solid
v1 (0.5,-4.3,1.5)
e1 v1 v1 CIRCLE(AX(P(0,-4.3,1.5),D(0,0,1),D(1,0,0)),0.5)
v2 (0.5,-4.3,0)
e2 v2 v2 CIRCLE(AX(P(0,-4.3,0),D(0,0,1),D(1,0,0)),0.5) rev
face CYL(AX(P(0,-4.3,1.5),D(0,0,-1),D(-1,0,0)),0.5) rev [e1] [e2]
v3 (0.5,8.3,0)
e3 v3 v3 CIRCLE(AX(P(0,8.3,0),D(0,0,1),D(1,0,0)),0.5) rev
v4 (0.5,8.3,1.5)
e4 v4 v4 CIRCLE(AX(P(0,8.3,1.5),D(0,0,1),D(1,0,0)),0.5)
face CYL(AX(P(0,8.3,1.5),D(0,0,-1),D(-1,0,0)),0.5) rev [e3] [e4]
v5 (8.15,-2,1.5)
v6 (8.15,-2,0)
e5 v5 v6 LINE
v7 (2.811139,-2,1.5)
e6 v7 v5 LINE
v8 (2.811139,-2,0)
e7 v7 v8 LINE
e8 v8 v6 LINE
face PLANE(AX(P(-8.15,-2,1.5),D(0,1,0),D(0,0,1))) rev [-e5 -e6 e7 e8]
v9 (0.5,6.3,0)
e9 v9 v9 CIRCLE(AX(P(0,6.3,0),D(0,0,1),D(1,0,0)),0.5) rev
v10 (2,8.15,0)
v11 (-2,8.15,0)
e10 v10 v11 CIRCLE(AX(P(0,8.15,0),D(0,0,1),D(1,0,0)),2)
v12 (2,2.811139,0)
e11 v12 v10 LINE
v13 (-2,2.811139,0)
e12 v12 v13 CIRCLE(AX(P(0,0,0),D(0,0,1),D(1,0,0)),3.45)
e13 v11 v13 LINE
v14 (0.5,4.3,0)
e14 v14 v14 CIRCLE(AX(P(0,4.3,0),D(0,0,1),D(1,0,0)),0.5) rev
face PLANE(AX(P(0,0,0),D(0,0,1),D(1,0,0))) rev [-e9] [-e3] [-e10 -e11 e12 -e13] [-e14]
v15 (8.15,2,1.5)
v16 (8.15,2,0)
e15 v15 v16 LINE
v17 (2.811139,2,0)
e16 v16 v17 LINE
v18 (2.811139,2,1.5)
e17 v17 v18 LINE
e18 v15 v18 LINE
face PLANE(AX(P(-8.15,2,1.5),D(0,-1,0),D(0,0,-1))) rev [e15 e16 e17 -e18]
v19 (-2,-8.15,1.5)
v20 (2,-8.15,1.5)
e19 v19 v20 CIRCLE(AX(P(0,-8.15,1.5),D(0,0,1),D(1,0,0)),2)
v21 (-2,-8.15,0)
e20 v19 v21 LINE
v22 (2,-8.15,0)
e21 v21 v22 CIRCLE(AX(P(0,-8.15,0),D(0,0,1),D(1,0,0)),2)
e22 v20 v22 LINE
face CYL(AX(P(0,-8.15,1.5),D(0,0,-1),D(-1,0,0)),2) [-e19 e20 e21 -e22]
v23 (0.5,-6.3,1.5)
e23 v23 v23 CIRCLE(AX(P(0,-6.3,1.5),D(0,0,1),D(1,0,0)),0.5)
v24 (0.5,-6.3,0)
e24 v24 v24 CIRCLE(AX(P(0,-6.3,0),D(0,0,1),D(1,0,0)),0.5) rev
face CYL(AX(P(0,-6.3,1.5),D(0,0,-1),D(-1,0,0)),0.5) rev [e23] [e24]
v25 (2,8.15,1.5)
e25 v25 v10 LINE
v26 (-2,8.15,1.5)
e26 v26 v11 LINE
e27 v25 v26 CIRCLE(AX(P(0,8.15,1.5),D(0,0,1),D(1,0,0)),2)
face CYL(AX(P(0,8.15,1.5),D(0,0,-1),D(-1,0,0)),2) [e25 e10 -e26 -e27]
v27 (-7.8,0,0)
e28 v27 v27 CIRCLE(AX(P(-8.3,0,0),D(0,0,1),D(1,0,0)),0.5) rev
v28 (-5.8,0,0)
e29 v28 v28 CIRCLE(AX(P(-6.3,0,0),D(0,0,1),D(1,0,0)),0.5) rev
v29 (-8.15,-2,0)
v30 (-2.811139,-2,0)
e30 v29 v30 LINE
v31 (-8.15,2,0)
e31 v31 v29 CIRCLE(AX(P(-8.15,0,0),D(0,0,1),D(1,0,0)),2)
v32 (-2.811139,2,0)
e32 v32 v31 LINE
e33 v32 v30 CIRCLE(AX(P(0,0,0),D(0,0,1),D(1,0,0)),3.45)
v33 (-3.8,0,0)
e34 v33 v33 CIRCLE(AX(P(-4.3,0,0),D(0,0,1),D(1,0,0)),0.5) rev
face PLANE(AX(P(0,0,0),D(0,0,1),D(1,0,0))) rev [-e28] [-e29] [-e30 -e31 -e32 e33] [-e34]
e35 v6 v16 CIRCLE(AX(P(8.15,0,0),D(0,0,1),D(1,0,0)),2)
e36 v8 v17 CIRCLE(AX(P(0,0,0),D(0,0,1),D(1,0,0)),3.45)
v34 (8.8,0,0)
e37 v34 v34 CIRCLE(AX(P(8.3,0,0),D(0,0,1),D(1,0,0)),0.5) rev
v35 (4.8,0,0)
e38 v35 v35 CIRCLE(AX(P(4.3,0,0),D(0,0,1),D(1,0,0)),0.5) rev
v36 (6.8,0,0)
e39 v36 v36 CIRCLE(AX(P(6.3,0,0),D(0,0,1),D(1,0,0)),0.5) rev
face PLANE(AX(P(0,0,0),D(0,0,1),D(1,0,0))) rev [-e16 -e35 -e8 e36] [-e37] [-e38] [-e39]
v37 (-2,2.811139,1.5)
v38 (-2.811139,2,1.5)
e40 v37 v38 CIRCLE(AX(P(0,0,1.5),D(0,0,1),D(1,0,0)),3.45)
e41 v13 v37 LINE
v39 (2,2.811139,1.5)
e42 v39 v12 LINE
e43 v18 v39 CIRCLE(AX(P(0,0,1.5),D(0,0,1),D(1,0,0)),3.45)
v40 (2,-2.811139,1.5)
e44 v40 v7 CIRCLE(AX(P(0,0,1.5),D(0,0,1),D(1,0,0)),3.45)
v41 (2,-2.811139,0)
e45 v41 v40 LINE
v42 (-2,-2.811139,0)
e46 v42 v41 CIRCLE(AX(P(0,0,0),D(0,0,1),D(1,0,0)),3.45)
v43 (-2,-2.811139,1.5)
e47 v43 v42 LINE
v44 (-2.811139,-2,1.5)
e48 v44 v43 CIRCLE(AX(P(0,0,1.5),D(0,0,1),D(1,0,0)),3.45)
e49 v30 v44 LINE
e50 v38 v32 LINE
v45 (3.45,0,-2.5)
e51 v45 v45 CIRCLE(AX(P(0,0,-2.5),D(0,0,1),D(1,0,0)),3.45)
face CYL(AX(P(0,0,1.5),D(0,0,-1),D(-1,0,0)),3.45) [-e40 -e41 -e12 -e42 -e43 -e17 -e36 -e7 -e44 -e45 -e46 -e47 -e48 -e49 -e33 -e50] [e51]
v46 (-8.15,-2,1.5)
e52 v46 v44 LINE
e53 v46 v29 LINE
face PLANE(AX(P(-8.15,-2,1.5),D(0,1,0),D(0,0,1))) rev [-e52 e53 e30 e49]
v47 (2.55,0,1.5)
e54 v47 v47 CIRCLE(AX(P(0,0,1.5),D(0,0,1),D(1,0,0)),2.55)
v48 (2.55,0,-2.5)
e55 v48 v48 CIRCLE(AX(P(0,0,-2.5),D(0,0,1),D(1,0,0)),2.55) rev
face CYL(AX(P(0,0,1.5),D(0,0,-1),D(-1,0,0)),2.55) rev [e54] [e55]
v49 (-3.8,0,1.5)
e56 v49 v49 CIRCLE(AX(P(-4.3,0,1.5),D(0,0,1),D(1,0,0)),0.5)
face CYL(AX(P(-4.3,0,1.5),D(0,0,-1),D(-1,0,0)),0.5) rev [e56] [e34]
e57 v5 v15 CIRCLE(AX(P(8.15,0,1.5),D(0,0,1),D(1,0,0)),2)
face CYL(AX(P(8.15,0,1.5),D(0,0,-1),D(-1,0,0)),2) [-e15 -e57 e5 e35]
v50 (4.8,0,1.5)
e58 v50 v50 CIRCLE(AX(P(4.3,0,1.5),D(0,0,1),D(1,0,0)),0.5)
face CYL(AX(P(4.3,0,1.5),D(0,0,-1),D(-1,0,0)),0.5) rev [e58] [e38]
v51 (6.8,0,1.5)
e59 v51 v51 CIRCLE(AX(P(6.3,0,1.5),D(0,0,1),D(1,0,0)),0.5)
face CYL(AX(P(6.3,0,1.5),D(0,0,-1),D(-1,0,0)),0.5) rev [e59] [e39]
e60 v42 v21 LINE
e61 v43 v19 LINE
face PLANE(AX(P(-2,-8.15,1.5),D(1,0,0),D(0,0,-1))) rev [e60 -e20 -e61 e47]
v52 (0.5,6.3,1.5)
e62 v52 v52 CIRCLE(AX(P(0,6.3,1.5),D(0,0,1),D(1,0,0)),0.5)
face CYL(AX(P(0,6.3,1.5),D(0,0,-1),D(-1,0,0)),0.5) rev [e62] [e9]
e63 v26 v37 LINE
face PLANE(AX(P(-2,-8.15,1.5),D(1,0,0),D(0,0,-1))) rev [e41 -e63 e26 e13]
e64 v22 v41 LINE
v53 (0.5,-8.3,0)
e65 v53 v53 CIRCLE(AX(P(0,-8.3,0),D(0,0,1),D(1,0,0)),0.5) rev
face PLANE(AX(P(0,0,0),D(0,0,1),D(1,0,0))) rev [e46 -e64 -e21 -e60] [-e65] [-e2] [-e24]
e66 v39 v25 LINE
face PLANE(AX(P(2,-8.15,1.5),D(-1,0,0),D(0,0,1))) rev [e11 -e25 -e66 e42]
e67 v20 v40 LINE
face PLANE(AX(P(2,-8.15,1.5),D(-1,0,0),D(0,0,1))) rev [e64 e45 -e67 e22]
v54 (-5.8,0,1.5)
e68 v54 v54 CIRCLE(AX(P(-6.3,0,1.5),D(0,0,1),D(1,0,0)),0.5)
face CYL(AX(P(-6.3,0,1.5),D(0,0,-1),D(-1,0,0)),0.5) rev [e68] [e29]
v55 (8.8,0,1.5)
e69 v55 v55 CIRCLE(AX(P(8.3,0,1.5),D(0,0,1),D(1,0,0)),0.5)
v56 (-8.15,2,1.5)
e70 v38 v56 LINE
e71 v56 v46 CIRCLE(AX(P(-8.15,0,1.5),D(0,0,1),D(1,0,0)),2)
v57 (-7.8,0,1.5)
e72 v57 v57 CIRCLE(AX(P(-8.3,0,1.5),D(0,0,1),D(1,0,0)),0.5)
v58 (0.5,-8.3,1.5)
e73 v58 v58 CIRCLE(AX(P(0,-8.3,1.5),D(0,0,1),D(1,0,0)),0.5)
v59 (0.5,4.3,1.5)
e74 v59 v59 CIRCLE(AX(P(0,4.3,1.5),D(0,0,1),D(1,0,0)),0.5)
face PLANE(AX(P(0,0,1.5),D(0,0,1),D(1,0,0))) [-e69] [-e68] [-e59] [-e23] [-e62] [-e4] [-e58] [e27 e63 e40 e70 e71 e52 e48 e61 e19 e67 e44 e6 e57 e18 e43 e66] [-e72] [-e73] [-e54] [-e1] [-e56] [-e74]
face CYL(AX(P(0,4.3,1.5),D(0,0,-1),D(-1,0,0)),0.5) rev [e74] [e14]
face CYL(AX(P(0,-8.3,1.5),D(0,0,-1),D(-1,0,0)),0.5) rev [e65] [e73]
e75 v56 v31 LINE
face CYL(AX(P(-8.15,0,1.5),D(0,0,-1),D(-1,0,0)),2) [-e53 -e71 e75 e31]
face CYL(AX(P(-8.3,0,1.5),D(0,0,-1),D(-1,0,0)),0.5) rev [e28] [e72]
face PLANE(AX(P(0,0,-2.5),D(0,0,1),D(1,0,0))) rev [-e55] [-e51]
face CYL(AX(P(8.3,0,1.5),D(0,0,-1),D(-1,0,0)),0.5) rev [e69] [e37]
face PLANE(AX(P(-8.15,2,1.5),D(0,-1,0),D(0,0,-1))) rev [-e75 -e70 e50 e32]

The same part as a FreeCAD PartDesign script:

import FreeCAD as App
import Part
import Sketcher

V = App.Vector
Q = App.Units.Quantity


def add_polygon(sketch, points):
    """Adds a closed chain of lines whose ends are joined by coincident constraints."""
    first, n = sketch.GeometryCount, len(points)
    for a, b in zip(points, points[1:] + points[:1]):
        sketch.addGeometry(Part.LineSegment(App.Vector(*a, 0), App.Vector(*b, 0)), False)
    for i in range(n):
        sketch.addConstraint(Sketcher.Constraint("Coincident", first + i, 2, first + (i + 1) % n, 1))

doc = App.newDocument("Part")
body = doc.addObject("PartDesign::Body", "Body")

# Sketch on XY plane
sketch1 = body.newObject("Sketcher::SketchObject", "Sketch")
sketch1.AttachmentSupport = (doc.getObject("XY_Plane"), [""])
sketch1.MapMode = "FlatFace"
sketch1.addGeometry(Part.Circle(V(0, 0, 0), V(0, 0, 1), 3.5), False)
sketch1.addConstraint([
    Sketcher.Constraint("Coincident", 0, 3, -1, 1),
    Sketcher.Constraint("Diameter", 0, Q("6.9 mm")),
])
pad1 = body.newObject("PartDesign::Pad", "Pad")
pad1.Profile = sketch1
pad1.Length = 1.5

# Sketch on XY plane
sketch2 = body.newObject("Sketcher::SketchObject", "Sketch001")
sketch2.AttachmentSupport = (doc.getObject("XY_Plane"), [""])
sketch2.MapMode = "FlatFace"
add_polygon(sketch2, [(-8.2, 2), (-8.2, -2), (8.2, -2), (8.2, 2)])  # lines 0-3
sketch2.addConstraint([
    Sketcher.Constraint("Vertical", 0),
    Sketcher.Constraint("Horizontal", 1),
    Sketcher.Constraint("Vertical", 2),
    Sketcher.Constraint("Horizontal", 3),
    Sketcher.Constraint("Symmetric", 0, 2, 2, 2, -1, 1),
    Sketcher.Constraint("DistanceY", 0, 2, 0, 1, Q("4 mm")),
    Sketcher.Constraint("DistanceX", 1, 1, 1, 2, Q("16.3 mm")),
])
pad2 = body.newObject("PartDesign::Pad", "Pad001")
pad2.Profile = sketch2
pad2.Length = 1.5

# Sketch on XY plane
sketch3 = body.newObject("Sketcher::SketchObject", "Sketch002")
sketch3.AttachmentSupport = (doc.getObject("XY_Plane"), [""])
sketch3.MapMode = "FlatFace"
add_polygon(sketch3, [(-2, 8.2), (-2, -8.2), (2, -8.2), (2, 8.2)])  # lines 0-3
sketch3.addConstraint([
    Sketcher.Constraint("Vertical", 0),
    Sketcher.Constraint("Horizontal", 1),
    Sketcher.Constraint("Vertical", 2),
    Sketcher.Constraint("Horizontal", 3),
    Sketcher.Constraint("Symmetric", 0, 2, 2, 2, -1, 1),
    Sketcher.Constraint("DistanceX", 1, 1, 1, 2, Q("4 mm")),
    Sketcher.Constraint("DistanceY", 0, 2, 0, 1, Q("16.3 mm")),
])
pad3 = body.newObject("PartDesign::Pad", "Pad002")
pad3.Profile = sketch3
pad3.Length = 1.5

# Sketch on XY plane
sketch4 = body.newObject("Sketcher::SketchObject", "Sketch003")
sketch4.AttachmentSupport = (doc.getObject("XY_Plane"), [""])
sketch4.MapMode = "FlatFace"
sketch4.addGeometry([
    Part.Circle(V(8.2, 0, 0), V(0, 0, 1), 2),
    Part.Circle(V(-8.2, 0, 0), V(0, 0, 1), 2),
    Part.Circle(V(0, 8.2, 0), V(0, 0, 1), 2),
    Part.Circle(V(0, -8.2, 0), V(0, 0, 1), 2),
], False)
sketch4.addConstraint([
    Sketcher.Constraint("Equal", 0, 1),
    Sketcher.Constraint("Equal", 1, 2),
    Sketcher.Constraint("Equal", 2, 3),
    Sketcher.Constraint("Symmetric", 0, 3, 1, 3, -1, 1),
    Sketcher.Constraint("Symmetric", 2, 3, 3, 3, -1, 1),
    Sketcher.Constraint("PointOnObject", 0, 3, -1),
    Sketcher.Constraint("PointOnObject", 2, 3, -2),
    Sketcher.Constraint("Diameter", 0, Q("4 mm")),
    Sketcher.Constraint("DistanceX", 1, 3, 0, 3, Q("16.3 mm")),
    Sketcher.Constraint("DistanceY", 3, 3, 2, 3, Q("16.3 mm")),
])
pad4 = body.newObject("PartDesign::Pad", "Pad003")
pad4.Profile = sketch4
pad4.Length = 1.5

# Sketch on XY plane
sketch5 = body.newObject("Sketcher::SketchObject", "Sketch004")
sketch5.AttachmentSupport = (doc.getObject("XY_Plane"), [""])
sketch5.MapMode = "FlatFace"
sketch5.AttachmentOffset = App.Placement(V(0, 0, -2.5), App.Rotation())
sketch5.addGeometry(Part.Circle(V(0, 0, 0), V(0, 0, 1), 3.5), False)
sketch5.addConstraint([
    Sketcher.Constraint("Coincident", 0, 3, -1, 1),
    Sketcher.Constraint("Diameter", 0, Q("6.9 mm")),
])
pad5 = body.newObject("PartDesign::Pad", "Pad004")
pad5.Profile = sketch5
pad5.Length = 2.5

# Sketch on XY plane
sketch6 = body.newObject("Sketcher::SketchObject", "Sketch005")
sketch6.AttachmentSupport = (doc.getObject("XY_Plane"), [""])
sketch6.MapMode = "FlatFace"
sketch6.AttachmentOffset = App.Placement(V(0, 0, -50), App.Rotation())
sketch6.addGeometry(Part.Circle(V(0, 0, 0), V(0, 0, 1), 2.5), False)
sketch6.addConstraint([
    Sketcher.Constraint("Coincident", 0, 3, -1, 1),
    Sketcher.Constraint("Diameter", 0, Q("5.1 mm")),
])
pocket1 = body.newObject("PartDesign::Pocket", "Pocket")
pocket1.Profile = sketch6
pocket1.Type = "ThroughAll"
pocket1.Reversed = True

# Sketch on XY plane
sketch7 = body.newObject("Sketcher::SketchObject", "Sketch006")
sketch7.AttachmentSupport = (doc.getObject("XY_Plane"), [""])
sketch7.MapMode = "FlatFace"
sketch7.AttachmentOffset = App.Placement(V(0, 0, -50), App.Rotation())
sketch7.addGeometry([
    Part.Circle(V(-8.3, 0, 0), V(0, 0, 1), 0.5),  # 0
    Part.Circle(V(-6.3, 0, 0), V(0, 0, 1), 0.5),  # 1
    Part.Circle(V(-4.3, 0, 0), V(0, 0, 1), 0.5),  # 2
    Part.Circle(V(4.3, 0, 0), V(0, 0, 1), 0.5),  # 3
    Part.Circle(V(6.3, 0, 0), V(0, 0, 1), 0.5),  # 4
    Part.Circle(V(8.3, 0, 0), V(0, 0, 1), 0.5),  # 5
    Part.Circle(V(0, -8.3, 0), V(0, 0, 1), 0.5),  # 6
    Part.Circle(V(0, -6.3, 0), V(0, 0, 1), 0.5),  # 7
    Part.Circle(V(0, -4.3, 0), V(0, 0, 1), 0.5),  # 8
    Part.Circle(V(0, 4.3, 0), V(0, 0, 1), 0.5),  # 9
    Part.Circle(V(0, 6.3, 0), V(0, 0, 1), 0.5),  # 10
    Part.Circle(V(0, 8.3, 0), V(0, 0, 1), 0.5),  # 11
], False)
sketch7.addConstraint([
    Sketcher.Constraint("Equal", 0, 1),
    Sketcher.Constraint("Equal", 1, 2),
    Sketcher.Constraint("Equal", 2, 3),
    Sketcher.Constraint("Equal", 3, 4),
    Sketcher.Constraint("Equal", 4, 5),
    Sketcher.Constraint("Equal", 5, 6),
    Sketcher.Constraint("Equal", 6, 7),
    Sketcher.Constraint("Equal", 7, 8),
    Sketcher.Constraint("Equal", 8, 9),
    Sketcher.Constraint("Equal", 9, 10),
    Sketcher.Constraint("Equal", 10, 11),
    Sketcher.Constraint("Symmetric", 2, 3, 3, 3, -1, 1),
    Sketcher.Constraint("Symmetric", 1, 3, 4, 3, -1, 1),
    Sketcher.Constraint("Symmetric", 0, 3, 5, 3, -1, 1),
    Sketcher.Constraint("Symmetric", 8, 3, 9, 3, -1, 1),
    Sketcher.Constraint("Symmetric", 7, 3, 10, 3, -1, 1),
    Sketcher.Constraint("Symmetric", 6, 3, 11, 3, -1, 1),
    Sketcher.Constraint("PointOnObject", 0, 3, -1),
    Sketcher.Constraint("PointOnObject", 1, 3, -1),
    Sketcher.Constraint("PointOnObject", 2, 3, -1),
    Sketcher.Constraint("PointOnObject", 6, 3, -2),
    Sketcher.Constraint("PointOnObject", 7, 3, -2),
    Sketcher.Constraint("PointOnObject", 8, 3, -2),
    Sketcher.Constraint("Diameter", 0, Q("1 mm")),
    Sketcher.Constraint("DistanceX", 0, 3, 1, 3, Q("2 mm")),
    Sketcher.Constraint("DistanceX", 1, 3, 2, 3, Q("2 mm")),
    Sketcher.Constraint("DistanceY", 6, 3, 7, 3, Q("2 mm")),
    Sketcher.Constraint("DistanceY", 7, 3, 8, 3, Q("2 mm")),
    Sketcher.Constraint("DistanceX", 0, 3, -1, 1, Q("8.3 mm")),
    Sketcher.Constraint("DistanceY", 6, 3, -1, 1, Q("8.3 mm")),
])
pocket2 = body.newObject("PartDesign::Pocket", "Pocket001")
pocket2.Profile = sketch7
pocket2.Type = "ThroughAll"
pocket2.Reversed = True

doc.recompute()
